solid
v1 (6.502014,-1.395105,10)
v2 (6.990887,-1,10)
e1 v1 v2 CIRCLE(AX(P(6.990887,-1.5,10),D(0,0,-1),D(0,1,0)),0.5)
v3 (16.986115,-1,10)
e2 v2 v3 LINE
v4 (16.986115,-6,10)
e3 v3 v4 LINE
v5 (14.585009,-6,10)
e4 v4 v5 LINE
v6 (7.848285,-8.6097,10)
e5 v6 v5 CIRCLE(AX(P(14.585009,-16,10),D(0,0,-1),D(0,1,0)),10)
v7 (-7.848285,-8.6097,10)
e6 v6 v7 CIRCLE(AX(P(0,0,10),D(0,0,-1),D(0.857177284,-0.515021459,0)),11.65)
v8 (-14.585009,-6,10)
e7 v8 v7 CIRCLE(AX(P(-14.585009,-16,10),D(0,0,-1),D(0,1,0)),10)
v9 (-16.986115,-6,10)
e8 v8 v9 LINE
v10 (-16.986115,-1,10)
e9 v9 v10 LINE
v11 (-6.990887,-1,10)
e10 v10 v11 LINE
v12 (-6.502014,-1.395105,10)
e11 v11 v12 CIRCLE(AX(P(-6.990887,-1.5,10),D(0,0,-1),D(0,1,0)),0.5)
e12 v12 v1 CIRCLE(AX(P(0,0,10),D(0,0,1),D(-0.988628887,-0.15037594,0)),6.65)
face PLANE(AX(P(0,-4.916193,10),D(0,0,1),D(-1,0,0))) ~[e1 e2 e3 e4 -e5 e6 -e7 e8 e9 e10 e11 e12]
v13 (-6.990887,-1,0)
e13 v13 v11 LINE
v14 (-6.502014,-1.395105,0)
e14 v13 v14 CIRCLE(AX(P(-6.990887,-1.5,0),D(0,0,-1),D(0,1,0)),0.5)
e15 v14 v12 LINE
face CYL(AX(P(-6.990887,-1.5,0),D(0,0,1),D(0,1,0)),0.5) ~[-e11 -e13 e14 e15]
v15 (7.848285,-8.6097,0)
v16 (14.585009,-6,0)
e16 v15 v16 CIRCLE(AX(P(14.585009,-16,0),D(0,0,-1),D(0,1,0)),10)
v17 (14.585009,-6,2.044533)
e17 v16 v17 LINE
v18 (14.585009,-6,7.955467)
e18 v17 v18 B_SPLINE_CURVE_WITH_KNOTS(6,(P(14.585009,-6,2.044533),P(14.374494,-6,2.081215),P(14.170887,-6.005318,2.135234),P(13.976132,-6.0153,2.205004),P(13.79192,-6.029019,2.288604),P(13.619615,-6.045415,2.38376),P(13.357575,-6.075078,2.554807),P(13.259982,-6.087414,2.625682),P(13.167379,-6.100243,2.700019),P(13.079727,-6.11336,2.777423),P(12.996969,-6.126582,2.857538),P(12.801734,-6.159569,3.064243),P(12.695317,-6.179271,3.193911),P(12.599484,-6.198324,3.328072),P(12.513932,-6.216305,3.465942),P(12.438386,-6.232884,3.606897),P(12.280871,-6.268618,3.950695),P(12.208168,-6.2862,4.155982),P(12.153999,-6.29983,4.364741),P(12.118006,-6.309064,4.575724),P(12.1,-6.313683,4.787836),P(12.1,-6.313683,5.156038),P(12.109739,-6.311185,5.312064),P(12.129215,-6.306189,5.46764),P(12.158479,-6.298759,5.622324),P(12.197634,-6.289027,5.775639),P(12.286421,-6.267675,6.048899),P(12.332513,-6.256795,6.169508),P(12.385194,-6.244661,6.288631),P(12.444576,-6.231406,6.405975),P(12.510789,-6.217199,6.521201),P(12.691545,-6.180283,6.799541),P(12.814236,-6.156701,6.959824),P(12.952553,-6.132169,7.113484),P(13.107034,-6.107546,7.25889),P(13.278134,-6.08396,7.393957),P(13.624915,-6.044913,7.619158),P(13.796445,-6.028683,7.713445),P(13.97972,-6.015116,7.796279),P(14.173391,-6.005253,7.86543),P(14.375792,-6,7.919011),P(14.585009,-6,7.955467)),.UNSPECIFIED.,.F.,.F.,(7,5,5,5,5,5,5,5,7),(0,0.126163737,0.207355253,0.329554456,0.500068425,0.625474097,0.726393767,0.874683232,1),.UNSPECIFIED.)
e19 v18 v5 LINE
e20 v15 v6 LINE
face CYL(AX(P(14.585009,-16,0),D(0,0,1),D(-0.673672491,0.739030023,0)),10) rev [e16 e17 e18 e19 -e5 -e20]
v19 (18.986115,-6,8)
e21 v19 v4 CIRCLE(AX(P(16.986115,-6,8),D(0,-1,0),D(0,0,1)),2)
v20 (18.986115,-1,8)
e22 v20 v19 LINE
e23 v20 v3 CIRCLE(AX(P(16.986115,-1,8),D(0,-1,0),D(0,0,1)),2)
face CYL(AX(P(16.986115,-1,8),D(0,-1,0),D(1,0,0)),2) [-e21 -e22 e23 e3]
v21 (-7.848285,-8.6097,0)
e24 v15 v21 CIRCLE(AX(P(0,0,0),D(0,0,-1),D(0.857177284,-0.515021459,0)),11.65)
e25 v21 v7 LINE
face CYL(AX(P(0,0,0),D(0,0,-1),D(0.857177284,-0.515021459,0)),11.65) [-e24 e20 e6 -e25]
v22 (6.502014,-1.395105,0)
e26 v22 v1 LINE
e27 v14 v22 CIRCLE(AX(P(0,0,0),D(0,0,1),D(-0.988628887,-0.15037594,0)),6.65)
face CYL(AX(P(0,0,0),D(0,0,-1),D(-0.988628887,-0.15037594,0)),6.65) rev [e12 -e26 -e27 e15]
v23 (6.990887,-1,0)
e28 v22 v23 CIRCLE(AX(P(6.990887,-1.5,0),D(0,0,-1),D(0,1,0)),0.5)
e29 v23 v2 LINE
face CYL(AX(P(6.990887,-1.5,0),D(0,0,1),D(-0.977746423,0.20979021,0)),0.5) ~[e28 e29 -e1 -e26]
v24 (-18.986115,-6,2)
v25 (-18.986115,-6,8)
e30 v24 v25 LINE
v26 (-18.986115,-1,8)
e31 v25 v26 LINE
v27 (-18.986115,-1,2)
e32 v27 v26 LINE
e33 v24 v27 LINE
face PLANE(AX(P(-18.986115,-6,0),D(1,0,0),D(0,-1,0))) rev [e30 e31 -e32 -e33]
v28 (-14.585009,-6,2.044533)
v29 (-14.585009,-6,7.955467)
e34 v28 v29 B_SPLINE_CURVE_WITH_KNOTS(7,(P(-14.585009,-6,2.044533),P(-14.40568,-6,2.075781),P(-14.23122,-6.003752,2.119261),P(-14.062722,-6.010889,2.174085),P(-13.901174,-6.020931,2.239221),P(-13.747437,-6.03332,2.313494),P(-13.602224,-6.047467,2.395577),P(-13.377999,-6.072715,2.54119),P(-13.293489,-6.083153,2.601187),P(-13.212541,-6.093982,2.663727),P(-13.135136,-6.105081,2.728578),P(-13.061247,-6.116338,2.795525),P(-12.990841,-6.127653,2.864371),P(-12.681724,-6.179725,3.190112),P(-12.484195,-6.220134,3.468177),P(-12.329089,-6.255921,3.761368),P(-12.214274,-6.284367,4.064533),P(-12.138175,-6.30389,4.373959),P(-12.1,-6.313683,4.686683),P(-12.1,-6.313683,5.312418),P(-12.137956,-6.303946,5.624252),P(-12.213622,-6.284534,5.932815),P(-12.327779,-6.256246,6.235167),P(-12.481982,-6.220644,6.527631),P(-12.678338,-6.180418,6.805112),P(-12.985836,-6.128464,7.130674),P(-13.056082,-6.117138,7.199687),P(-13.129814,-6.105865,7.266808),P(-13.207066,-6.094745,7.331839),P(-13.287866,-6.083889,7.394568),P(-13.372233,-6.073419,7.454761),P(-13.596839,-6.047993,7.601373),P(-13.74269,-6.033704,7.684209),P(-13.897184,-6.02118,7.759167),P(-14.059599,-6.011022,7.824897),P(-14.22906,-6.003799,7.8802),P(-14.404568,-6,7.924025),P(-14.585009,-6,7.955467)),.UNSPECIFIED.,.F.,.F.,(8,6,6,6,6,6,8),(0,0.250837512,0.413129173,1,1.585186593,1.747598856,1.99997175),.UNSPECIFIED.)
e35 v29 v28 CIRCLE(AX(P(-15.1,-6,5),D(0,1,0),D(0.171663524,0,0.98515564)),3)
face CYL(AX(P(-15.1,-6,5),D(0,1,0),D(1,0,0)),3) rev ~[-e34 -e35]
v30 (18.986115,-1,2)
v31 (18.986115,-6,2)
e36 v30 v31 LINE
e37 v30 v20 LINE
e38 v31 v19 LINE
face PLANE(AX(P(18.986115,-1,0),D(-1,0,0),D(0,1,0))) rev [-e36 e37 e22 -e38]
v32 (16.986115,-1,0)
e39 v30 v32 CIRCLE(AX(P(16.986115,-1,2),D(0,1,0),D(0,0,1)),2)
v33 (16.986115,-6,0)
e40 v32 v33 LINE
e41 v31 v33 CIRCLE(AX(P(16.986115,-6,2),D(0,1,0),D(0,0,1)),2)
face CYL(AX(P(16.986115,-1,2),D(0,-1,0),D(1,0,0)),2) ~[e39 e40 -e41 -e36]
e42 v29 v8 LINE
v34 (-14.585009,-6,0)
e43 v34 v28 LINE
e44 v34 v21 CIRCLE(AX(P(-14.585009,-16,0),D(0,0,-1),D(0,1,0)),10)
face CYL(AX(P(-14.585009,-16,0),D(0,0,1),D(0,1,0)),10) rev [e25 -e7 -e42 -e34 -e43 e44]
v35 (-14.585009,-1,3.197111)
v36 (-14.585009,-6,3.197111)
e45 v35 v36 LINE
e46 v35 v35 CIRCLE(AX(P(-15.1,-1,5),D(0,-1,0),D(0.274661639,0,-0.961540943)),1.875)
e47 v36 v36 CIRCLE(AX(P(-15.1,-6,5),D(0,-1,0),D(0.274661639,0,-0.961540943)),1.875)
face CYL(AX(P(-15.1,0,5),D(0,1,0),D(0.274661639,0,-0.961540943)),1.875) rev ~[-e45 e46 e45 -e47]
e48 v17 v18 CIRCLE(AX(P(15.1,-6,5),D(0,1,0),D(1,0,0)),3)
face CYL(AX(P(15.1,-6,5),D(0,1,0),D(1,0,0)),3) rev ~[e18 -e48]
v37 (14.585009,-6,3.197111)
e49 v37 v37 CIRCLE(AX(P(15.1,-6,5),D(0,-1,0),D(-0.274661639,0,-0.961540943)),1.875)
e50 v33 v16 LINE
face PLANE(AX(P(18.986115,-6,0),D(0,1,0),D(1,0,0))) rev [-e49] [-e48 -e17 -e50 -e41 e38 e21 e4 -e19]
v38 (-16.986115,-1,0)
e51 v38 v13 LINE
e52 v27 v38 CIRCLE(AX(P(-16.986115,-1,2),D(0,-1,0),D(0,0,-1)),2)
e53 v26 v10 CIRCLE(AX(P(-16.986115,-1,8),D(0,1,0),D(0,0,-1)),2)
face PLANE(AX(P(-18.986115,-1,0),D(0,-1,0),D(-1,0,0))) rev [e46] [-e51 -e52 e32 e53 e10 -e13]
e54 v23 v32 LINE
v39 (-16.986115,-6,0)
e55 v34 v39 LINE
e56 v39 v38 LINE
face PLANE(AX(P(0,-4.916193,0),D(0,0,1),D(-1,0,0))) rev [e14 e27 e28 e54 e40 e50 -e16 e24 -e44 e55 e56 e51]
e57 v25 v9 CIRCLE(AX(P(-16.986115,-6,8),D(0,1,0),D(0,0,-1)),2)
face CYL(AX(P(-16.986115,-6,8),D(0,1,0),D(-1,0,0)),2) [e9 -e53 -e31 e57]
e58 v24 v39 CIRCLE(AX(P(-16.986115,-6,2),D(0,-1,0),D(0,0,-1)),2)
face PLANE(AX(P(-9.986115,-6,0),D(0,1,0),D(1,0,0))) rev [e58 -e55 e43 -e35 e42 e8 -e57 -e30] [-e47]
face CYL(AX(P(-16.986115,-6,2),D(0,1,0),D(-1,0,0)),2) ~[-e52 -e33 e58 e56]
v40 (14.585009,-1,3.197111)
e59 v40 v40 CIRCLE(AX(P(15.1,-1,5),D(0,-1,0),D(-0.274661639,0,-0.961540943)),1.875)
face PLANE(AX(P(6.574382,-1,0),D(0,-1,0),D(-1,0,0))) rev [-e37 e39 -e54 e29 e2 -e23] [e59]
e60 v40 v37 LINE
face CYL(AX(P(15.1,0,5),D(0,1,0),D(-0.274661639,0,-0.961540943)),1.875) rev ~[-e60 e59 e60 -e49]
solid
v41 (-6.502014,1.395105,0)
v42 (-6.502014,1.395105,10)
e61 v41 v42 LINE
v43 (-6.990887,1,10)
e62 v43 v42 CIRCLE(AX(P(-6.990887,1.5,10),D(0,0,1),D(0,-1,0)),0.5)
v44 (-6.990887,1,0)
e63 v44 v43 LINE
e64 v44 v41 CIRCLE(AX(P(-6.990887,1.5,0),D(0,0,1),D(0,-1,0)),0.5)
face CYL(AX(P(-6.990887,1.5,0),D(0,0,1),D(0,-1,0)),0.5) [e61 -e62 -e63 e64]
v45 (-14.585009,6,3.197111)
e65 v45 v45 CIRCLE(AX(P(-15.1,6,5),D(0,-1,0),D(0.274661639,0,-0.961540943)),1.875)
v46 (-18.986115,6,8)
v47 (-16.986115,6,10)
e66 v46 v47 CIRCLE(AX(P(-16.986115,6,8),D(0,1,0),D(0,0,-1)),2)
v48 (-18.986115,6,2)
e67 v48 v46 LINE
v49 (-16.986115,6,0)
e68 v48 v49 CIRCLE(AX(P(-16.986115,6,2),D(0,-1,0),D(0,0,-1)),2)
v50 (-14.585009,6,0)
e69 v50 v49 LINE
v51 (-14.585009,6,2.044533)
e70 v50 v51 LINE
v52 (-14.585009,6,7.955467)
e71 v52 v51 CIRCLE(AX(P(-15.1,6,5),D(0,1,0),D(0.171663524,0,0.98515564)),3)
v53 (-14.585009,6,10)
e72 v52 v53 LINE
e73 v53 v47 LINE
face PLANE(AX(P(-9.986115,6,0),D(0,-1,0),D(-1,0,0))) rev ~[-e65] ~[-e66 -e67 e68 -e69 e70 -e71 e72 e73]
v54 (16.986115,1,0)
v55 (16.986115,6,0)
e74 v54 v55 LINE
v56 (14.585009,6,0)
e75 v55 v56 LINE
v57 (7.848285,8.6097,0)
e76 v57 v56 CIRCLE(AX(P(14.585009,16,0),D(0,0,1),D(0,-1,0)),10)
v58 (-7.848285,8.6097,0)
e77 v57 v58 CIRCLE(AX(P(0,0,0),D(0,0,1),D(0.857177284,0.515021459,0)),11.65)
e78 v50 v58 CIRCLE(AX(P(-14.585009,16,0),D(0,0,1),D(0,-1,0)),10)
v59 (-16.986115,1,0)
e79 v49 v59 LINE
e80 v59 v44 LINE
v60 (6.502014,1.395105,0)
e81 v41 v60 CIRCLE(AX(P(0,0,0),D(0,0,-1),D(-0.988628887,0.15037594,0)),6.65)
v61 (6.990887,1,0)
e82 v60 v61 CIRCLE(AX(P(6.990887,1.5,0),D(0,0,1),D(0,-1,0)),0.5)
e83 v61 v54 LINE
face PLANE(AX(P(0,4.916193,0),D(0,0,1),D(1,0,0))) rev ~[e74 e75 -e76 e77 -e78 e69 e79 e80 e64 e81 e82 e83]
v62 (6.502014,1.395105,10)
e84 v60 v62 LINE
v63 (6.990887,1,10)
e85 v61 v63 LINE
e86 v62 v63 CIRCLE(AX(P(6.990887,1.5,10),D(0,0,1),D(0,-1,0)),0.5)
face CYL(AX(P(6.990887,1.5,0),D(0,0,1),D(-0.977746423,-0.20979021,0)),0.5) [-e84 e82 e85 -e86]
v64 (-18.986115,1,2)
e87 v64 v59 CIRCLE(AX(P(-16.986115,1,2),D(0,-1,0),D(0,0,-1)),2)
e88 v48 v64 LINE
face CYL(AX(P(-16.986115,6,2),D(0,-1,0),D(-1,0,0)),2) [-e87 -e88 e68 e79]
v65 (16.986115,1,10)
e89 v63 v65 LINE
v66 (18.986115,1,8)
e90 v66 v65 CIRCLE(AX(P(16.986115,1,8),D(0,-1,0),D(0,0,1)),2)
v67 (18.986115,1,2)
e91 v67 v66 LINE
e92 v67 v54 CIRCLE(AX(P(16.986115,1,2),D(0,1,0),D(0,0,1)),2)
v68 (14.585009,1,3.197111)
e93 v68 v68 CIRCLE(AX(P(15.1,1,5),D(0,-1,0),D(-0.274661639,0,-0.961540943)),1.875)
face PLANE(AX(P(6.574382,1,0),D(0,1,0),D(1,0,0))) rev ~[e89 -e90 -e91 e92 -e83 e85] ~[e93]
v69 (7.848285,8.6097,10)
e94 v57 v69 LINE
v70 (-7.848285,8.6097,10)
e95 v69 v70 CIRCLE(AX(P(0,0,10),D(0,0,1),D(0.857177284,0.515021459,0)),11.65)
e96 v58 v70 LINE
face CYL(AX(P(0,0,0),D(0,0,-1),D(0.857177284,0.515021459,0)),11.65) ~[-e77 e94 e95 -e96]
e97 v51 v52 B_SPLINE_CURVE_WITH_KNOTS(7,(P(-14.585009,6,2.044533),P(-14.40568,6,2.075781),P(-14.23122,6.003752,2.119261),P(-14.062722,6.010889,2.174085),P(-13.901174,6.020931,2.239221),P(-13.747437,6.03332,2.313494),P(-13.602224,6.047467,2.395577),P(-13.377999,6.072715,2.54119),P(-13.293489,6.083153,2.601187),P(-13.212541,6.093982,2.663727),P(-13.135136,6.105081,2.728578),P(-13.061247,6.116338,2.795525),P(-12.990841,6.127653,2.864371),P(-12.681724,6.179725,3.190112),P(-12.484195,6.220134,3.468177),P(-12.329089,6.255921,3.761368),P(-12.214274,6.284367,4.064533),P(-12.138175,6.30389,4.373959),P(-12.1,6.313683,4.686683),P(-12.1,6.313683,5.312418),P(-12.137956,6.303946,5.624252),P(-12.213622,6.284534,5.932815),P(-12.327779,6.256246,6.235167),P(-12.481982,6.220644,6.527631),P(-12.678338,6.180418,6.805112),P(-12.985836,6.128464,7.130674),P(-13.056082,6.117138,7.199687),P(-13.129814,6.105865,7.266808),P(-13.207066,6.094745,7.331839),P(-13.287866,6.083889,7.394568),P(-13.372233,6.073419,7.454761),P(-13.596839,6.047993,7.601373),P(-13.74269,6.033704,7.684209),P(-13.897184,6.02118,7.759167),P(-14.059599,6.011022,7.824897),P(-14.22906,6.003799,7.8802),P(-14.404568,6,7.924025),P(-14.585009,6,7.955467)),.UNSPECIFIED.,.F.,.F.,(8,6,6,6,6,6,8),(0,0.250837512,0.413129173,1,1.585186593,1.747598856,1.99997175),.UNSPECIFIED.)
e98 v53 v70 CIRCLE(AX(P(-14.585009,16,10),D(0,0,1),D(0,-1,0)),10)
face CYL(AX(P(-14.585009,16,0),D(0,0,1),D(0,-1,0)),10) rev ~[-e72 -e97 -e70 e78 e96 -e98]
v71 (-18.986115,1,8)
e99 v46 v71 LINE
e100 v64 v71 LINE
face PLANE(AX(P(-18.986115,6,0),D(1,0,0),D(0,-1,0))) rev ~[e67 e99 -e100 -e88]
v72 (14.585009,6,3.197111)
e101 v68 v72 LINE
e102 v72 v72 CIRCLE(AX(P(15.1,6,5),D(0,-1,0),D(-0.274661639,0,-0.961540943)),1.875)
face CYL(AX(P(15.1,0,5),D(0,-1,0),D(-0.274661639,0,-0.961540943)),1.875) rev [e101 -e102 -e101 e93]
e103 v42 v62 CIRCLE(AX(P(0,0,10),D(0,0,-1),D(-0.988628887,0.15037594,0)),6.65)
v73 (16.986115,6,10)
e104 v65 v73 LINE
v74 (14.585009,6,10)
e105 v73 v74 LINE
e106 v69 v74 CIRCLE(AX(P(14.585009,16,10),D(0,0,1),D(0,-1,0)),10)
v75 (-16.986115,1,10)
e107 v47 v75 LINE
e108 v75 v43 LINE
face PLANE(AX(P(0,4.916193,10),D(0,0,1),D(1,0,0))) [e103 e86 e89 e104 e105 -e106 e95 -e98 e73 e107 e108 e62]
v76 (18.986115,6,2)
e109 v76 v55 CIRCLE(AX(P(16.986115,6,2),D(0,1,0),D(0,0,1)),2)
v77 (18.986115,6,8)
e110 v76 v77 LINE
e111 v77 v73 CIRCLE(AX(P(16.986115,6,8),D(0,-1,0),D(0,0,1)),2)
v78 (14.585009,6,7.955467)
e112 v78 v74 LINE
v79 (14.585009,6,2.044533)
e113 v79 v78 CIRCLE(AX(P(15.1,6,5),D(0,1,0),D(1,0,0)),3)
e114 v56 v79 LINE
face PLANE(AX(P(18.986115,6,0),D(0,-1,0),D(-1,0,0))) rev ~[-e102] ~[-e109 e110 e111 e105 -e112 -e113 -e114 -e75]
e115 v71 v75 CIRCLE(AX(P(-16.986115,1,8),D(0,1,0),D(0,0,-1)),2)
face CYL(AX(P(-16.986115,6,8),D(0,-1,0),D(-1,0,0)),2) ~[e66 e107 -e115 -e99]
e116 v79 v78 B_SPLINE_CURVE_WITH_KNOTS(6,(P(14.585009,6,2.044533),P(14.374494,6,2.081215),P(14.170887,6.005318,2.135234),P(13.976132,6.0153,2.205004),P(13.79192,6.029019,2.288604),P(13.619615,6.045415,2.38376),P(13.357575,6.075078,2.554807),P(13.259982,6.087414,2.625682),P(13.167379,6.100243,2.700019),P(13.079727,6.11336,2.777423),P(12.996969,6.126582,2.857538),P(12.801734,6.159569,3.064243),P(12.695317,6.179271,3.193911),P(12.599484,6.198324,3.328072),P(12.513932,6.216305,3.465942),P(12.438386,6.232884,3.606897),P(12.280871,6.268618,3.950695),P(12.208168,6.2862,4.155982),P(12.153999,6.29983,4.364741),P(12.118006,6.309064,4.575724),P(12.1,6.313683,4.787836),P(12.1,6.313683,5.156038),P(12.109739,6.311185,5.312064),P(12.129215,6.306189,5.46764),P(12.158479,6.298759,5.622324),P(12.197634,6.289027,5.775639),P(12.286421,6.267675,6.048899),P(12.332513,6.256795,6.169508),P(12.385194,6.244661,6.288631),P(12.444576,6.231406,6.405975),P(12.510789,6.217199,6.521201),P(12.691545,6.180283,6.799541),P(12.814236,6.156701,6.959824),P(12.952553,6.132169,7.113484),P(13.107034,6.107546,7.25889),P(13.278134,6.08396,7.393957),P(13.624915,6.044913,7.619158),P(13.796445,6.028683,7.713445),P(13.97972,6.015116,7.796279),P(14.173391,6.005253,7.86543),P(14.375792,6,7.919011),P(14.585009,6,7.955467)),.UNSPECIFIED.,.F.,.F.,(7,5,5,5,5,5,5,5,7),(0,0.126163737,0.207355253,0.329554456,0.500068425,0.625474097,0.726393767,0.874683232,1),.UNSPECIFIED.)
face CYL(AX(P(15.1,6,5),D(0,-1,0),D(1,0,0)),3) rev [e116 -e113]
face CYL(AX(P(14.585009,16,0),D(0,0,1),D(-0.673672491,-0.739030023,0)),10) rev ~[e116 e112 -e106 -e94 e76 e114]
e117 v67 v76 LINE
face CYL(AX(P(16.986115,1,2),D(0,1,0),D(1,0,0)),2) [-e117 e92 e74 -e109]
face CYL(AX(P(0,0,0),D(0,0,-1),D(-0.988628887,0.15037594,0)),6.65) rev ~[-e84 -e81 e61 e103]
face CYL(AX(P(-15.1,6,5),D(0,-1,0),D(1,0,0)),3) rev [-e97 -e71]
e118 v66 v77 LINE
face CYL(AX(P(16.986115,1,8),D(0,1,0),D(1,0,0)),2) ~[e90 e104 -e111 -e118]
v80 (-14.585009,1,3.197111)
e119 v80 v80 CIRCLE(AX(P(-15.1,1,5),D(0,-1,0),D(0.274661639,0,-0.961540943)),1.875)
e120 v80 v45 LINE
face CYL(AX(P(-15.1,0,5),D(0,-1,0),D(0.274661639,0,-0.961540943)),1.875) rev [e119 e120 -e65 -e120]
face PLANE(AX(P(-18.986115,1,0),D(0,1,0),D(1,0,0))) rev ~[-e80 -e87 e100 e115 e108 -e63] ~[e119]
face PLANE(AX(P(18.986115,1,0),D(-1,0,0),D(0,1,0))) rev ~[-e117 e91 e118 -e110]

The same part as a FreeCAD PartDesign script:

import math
import FreeCAD as App
import Part
import Sketcher
Q = App.Units.Quantity


def edges_at(feature, points):
    """Names of the edges that pass closest to the given points."""
    edges = feature.Shape.Edges
    near = lambda p: min(range(len(edges)), key=lambda i: edges[i].distToShape(Part.Vertex(*p))[0])
    return sorted({f"Edge{near(p) + 1}" for p in points})

doc = App.newDocument("Part")
body = doc.addObject("PartDesign::Body", "Body")

# Sketch on XY plane
sketch1 = body.newObject("Sketcher::SketchObject", "Sketch")
sketch1.AttachmentSupport = (doc.getObject("XY_Plane"), [""])
sketch1.MapMode = "FlatFace"
sketch1.addGeometry([
    Part.LineSegment(App.Vector(-18.986115, 1, 0), App.Vector(-6.574382, 1, 0)),  # 0
    Part.ArcOfCircle(Part.Circle(App.Vector(0, 0, 0), App.Vector(0, 0, 1), 6.65), math.radians(8.648713), math.radians(171.351287)),  # 1
    Part.LineSegment(App.Vector(6.574382, 1, 0), App.Vector(18.986115, 1, 0)),  # 2
    Part.LineSegment(App.Vector(18.986115, 1, 0), App.Vector(18.986115, 6, 0)),  # 3
    Part.LineSegment(App.Vector(18.986115, 6, 0), App.Vector(9.986115, 6, 0)),  # 4
    Part.ArcOfCircle(Part.Circle(App.Vector(0, 0, 0), App.Vector(0, 0, 1), 11.65), math.radians(30.998889), math.radians(149.001111)),  # 5
    Part.LineSegment(App.Vector(-9.986115, 6, 0), App.Vector(-18.986115, 6, 0)),  # 6
    Part.LineSegment(App.Vector(-18.986115, 6, 0), App.Vector(-18.986115, 1, 0)),  # 7
], False)
sketch1.addConstraint([
    Sketcher.Constraint("Coincident", 0, 2, 1, 2),
    Sketcher.Constraint("Coincident", 1, 1, 2, 1),
    Sketcher.Constraint("Coincident", 2, 2, 3, 1),
    Sketcher.Constraint("Coincident", 3, 2, 4, 1),
    Sketcher.Constraint("Coincident", 4, 2, 5, 1),
    Sketcher.Constraint("Coincident", 5, 2, 6, 1),
    Sketcher.Constraint("Coincident", 6, 2, 7, 1),
    Sketcher.Constraint("Coincident", 7, 2, 0, 1),
    Sketcher.Constraint("Horizontal", 0),
    Sketcher.Constraint("Horizontal", 2),
    Sketcher.Constraint("Vertical", 3),
    Sketcher.Constraint("Horizontal", 4),
    Sketcher.Constraint("Horizontal", 6),
    Sketcher.Constraint("Vertical", 7),
    Sketcher.Constraint("Coincident", 1, 3, -1, 1),
    Sketcher.Constraint("Coincident", 5, 3, -1, 1),
    Sketcher.Constraint("Symmetric", 3, 2, 6, 2, -2),
    Sketcher.Constraint("Horizontal", 0, 2, 1, 1),
    Sketcher.Constraint("DistanceX", 4, 2, 4, 1, Q("9 mm")),
    Sketcher.Constraint("DistanceY", 3, 1, 3, 2, Q("5 mm")),
    Sketcher.Constraint("Radius", 1, Q("6.65 mm")),
    Sketcher.Constraint("Radius", 5, Q("11.65 mm")),
    Sketcher.Constraint("DistanceY", -1, 1, 0, 2, Q("1 mm")),
])
pad1 = body.newObject("PartDesign::Pad", "Pad")
pad1.Profile = sketch1
pad1.Length = 10
doc.recompute()

fillet = body.newObject("PartDesign::Fillet", "Fillet")
fillet.Base = (pad1, edges_at(pad1, [
    (-18.986, 3.5, 0),
    (18.986, 3.5, 10),
    (-18.986, 3.5, 10),
    (18.986, 3.5, 0),
]))
fillet.Radius = 2
doc.recompute()

fillet2 = body.newObject("PartDesign::Fillet", "Fillet001")
fillet2.Base = (fillet, edges_at(fillet, [(6.574, 1, 5), (-6.574, 1, 5)]))
fillet2.Radius = 0.5
doc.recompute()

fillet3 = body.newObject("PartDesign::Fillet", "Fillet002")
fillet3.Base = (fillet2, edges_at(fillet2, [(-9.986, 6, 5), (9.986, 6, 5)]))
fillet3.Radius = 10

# Sketch on XZ plane
sketch2 = body.newObject("Sketcher::SketchObject", "Sketch001")
sketch2.AttachmentSupport = (doc.getObject("XZ_Plane"), [""])
sketch2.MapMode = "FlatFace"
sketch2.addGeometry([
    Part.Circle(App.Vector(-15.1, 5, 0), App.Vector(0, 0, 1), 1.875),
    Part.Circle(App.Vector(15.1, 5, 0), App.Vector(0, 0, 1), 1.875),
], False)
sketch2.addConstraint([
    Sketcher.Constraint("Equal", 0, 1),
    Sketcher.Constraint("Symmetric", 0, 3, 1, 3, -2),
    Sketcher.Constraint("Diameter", 0, Q("3.75 mm")),
    Sketcher.Constraint("DistanceY", -1, 1, 0, 3, Q("5 mm")),
    Sketcher.Constraint("DistanceX", 0, 3, -1, 1, Q("15.1 mm")),
])
pocket1 = body.newObject("PartDesign::Pocket", "Pocket")
pocket1.Profile = sketch2
pocket1.Type = "ThroughAll"

# Sketch on XZ plane
sketch3 = body.newObject("Sketcher::SketchObject", "Sketch002")
sketch3.AttachmentSupport = (doc.getObject("XZ_Plane"), [""])
sketch3.MapMode = "FlatFace"
sketch3.AttachmentOffset = App.Placement(App.Vector(0, 0, -6), App.Rotation())
sketch3.addGeometry([
    Part.Circle(App.Vector(-15.1, 5, 0), App.Vector(0, 0, 1), 3),
    Part.Circle(App.Vector(15.1, 5, 0), App.Vector(0, 0, 1), 3),
], False)
sketch3.addConstraint([
    Sketcher.Constraint("Equal", 0, 1),
    Sketcher.Constraint("Symmetric", 0, 3, 1, 3, -2),
    Sketcher.Constraint("Diameter", 0, Q("6 mm")),
    Sketcher.Constraint("DistanceY", -1, 1, 0, 3, Q("5 mm")),
    Sketcher.Constraint("DistanceX", 0, 3, -1, 1, Q("15.1 mm")),
])
pocket2 = body.newObject("PartDesign::Pocket", "Pocket001")
pocket2.Profile = sketch3
pocket2.Length = 10
body2 = doc.addObject("PartDesign::Body", "Body001")
doc.recompute()

mirroring = doc.addObject("Part::Mirroring", "Mirroring")
mirroring.Source = body
mirroring.Base = App.Vector(0, 0, 0)
mirroring.Normal = App.Vector(0, 1, 0)
body2.BaseFeature = mirroring
doc.recompute()
mirroring.Visibility = False

doc.recompute()
